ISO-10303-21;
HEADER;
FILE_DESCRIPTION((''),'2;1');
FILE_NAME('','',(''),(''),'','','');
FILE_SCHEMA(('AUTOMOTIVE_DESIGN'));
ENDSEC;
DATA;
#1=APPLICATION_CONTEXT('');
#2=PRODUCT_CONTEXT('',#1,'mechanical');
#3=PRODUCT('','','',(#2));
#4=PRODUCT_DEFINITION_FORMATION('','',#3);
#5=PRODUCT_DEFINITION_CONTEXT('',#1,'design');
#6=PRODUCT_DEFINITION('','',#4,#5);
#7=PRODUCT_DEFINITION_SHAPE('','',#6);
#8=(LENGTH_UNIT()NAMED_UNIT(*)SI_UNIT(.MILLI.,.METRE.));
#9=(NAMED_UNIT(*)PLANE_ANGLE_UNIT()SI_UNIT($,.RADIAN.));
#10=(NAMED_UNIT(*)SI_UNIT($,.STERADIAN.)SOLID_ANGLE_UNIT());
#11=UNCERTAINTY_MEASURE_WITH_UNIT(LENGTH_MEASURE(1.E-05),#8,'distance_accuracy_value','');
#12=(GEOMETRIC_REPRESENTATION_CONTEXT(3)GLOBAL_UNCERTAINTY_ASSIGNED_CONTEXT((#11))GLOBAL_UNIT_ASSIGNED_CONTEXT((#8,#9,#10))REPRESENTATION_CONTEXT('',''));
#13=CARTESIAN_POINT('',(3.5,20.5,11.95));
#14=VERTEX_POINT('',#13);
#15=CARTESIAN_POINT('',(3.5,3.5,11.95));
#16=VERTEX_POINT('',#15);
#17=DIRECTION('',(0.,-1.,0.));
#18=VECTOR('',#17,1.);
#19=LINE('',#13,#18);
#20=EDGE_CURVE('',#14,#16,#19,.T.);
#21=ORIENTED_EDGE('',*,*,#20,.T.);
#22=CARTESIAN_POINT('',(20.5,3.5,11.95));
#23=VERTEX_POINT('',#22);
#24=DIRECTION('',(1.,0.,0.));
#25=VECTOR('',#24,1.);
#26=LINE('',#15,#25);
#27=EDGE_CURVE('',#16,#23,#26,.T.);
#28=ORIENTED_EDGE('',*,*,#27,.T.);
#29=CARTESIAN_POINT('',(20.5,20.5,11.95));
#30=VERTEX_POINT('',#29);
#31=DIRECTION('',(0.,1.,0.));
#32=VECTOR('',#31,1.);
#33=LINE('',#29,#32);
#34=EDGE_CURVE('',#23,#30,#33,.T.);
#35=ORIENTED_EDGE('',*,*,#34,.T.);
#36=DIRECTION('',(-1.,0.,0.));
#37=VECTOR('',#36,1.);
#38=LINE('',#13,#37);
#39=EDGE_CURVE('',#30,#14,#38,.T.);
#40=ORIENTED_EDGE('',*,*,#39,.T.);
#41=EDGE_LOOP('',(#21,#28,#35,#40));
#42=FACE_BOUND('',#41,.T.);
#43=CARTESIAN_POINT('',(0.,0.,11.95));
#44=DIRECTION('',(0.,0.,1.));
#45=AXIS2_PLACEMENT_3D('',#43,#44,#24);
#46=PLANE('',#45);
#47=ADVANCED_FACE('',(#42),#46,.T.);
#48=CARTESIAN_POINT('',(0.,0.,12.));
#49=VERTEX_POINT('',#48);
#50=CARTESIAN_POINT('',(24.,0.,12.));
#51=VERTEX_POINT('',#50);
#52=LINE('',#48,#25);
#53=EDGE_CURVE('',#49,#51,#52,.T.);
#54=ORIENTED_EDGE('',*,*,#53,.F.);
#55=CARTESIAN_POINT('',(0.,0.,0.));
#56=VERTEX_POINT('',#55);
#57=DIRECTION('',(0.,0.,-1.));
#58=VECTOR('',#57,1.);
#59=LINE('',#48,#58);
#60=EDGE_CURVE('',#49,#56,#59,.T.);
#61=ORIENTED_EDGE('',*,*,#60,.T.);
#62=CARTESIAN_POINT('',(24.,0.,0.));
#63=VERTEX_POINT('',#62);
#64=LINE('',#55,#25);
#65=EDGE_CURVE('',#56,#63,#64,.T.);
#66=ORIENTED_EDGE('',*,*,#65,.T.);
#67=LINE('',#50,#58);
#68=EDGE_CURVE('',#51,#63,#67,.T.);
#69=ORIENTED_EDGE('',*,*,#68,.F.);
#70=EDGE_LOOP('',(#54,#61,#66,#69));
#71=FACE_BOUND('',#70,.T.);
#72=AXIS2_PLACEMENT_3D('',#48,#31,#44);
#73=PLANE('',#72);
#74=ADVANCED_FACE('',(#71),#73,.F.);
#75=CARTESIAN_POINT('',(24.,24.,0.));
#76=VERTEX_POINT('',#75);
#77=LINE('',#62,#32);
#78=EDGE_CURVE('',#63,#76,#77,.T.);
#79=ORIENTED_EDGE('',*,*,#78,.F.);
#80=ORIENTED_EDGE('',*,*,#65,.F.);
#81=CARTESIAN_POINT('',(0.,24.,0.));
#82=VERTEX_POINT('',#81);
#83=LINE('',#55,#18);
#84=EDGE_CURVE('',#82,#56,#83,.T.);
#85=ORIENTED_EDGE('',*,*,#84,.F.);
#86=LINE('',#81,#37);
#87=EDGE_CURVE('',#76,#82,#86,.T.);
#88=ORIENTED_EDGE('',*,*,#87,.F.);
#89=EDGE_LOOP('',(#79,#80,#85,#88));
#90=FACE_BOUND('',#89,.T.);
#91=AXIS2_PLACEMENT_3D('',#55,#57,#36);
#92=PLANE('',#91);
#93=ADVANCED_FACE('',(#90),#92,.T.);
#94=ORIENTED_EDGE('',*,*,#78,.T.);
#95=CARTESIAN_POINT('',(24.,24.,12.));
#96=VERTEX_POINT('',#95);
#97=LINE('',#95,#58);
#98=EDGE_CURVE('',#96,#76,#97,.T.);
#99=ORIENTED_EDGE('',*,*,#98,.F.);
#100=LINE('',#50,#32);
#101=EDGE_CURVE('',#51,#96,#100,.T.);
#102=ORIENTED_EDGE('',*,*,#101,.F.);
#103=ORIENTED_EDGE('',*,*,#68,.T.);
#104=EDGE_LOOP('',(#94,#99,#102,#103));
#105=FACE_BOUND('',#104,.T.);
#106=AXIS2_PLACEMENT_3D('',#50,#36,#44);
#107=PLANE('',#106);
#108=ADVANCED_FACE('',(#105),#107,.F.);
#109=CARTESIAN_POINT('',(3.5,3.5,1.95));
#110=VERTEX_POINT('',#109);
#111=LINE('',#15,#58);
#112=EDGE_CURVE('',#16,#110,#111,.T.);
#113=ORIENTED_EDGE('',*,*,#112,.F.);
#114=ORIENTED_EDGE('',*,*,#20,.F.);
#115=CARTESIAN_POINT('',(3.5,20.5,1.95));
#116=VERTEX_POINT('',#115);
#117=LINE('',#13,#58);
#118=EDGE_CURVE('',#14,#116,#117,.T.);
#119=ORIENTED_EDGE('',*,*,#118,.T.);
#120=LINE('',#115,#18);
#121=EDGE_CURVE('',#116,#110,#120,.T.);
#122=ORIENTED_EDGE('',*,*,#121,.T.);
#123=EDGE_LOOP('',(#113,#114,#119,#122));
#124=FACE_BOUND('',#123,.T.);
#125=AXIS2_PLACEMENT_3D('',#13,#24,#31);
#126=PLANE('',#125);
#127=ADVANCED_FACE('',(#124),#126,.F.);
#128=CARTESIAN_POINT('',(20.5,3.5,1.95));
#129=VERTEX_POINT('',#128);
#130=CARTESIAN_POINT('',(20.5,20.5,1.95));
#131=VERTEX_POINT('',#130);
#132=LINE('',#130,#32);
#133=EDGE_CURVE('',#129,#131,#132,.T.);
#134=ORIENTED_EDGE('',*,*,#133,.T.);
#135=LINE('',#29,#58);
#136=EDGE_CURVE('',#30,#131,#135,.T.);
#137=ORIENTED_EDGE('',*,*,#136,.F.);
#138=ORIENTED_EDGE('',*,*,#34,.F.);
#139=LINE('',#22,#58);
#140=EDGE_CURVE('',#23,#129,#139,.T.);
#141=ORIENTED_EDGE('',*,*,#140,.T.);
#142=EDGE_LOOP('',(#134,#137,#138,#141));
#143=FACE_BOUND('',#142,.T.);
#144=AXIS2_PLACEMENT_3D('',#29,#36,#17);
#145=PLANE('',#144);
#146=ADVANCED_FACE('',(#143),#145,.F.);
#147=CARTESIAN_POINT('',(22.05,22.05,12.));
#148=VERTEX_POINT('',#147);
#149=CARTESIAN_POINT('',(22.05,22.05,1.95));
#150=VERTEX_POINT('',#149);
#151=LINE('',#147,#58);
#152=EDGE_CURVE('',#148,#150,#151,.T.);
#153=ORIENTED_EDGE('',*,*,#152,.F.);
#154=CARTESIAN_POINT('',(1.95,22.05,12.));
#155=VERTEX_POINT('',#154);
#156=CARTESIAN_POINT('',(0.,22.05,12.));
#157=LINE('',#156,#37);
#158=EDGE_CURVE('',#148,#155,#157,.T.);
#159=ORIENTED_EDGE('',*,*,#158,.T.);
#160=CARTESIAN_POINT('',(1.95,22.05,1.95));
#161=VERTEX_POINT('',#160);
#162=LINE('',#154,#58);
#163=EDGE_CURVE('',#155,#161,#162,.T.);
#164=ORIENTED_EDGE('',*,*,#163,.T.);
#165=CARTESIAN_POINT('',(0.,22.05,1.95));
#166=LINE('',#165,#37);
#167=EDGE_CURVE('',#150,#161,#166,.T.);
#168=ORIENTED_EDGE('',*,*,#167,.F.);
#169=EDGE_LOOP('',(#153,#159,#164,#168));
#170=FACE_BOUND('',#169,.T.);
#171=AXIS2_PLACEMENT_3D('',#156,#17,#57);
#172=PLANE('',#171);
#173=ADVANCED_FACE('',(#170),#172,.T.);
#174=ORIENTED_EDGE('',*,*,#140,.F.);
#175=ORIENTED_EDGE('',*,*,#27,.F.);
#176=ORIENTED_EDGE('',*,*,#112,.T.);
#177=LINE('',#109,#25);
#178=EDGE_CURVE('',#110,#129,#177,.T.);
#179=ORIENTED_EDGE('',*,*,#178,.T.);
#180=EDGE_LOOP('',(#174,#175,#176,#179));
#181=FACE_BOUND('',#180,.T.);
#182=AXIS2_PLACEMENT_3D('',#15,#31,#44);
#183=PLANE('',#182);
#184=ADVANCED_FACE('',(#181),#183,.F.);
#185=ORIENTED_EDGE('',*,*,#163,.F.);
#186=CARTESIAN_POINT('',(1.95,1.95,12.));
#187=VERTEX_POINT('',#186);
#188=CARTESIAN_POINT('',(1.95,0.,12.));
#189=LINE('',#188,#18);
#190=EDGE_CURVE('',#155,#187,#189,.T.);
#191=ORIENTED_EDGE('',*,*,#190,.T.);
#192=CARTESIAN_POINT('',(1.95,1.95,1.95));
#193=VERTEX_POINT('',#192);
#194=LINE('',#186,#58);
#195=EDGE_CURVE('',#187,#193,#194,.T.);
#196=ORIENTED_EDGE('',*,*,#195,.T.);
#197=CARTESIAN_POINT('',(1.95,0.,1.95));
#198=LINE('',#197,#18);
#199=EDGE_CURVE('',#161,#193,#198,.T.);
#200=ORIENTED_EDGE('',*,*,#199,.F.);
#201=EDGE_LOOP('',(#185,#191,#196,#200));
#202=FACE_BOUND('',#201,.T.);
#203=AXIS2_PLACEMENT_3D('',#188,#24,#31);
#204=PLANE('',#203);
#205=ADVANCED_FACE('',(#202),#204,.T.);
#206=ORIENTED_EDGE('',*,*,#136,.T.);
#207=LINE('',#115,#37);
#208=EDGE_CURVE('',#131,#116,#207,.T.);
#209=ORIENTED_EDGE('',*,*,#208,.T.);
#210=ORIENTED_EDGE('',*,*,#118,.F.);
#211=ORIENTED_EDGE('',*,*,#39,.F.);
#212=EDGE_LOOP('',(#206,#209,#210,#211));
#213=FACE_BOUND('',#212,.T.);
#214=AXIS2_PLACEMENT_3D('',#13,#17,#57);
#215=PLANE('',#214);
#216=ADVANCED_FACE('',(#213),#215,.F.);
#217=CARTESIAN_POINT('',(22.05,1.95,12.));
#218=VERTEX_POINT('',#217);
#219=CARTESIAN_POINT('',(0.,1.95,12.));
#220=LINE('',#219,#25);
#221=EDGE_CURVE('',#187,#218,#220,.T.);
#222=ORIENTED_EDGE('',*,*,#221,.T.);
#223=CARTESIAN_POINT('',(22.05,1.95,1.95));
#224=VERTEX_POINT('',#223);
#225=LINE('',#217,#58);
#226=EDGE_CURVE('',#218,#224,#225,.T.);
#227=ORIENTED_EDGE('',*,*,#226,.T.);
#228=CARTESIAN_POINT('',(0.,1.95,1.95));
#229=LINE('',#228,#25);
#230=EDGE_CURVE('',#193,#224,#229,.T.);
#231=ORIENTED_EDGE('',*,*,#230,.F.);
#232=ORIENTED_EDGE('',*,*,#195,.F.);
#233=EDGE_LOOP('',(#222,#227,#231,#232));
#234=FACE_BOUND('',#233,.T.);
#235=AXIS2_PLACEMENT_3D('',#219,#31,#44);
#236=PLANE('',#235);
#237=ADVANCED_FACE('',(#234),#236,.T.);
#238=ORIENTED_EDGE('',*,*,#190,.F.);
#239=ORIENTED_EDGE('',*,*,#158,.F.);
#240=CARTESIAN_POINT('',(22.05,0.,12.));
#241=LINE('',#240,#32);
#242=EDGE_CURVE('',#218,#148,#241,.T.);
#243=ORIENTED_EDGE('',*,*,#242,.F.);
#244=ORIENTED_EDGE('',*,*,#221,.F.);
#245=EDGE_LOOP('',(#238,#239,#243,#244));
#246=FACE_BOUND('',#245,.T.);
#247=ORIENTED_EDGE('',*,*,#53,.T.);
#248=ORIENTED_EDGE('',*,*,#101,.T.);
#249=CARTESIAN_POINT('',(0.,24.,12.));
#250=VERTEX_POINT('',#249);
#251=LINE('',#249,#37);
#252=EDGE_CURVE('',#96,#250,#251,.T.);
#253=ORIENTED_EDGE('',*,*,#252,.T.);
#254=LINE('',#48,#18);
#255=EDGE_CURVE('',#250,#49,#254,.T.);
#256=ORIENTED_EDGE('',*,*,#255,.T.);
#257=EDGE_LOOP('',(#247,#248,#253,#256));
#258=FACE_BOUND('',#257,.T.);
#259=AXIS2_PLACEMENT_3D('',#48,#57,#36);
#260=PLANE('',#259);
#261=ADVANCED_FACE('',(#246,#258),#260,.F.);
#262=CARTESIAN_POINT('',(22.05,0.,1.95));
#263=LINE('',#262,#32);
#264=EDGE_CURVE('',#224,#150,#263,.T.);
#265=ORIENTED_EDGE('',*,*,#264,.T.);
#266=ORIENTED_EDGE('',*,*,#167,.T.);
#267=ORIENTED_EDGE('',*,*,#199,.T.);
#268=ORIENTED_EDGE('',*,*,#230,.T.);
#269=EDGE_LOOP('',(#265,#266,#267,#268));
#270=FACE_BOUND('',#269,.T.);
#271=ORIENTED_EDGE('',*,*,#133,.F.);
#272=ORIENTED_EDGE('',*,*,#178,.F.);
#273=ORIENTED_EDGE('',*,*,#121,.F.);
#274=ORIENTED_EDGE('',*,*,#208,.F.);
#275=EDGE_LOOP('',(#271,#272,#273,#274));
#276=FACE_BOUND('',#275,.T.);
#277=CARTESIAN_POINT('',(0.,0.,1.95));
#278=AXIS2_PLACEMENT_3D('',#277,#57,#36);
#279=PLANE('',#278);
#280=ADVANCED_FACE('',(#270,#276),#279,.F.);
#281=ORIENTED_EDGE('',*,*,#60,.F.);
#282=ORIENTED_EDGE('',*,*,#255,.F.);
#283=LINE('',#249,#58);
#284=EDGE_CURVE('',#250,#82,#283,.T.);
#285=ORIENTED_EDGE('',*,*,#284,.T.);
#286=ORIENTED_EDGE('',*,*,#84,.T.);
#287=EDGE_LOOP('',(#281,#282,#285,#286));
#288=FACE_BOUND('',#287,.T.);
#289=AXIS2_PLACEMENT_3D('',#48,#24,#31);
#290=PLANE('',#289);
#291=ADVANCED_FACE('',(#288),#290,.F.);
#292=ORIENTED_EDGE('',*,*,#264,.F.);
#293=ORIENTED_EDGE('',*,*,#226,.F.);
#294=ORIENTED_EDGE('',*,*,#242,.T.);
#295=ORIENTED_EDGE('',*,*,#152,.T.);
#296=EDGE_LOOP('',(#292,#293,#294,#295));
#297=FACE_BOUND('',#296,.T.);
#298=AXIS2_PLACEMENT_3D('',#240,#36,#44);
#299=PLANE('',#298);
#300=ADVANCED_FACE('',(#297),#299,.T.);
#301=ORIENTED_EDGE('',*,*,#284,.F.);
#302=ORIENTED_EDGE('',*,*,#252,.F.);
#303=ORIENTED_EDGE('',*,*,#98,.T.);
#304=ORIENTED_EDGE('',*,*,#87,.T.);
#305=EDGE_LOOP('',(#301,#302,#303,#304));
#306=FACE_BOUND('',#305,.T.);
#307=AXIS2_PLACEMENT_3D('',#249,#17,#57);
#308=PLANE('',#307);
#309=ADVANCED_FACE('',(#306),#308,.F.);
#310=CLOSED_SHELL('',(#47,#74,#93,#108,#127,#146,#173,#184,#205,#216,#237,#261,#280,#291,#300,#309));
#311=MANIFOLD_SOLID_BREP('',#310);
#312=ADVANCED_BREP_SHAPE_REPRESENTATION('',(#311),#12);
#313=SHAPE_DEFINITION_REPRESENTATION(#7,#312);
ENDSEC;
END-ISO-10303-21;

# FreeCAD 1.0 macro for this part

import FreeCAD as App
import Part
import Sketcher

V = App.Vector
Q = App.Units.Quantity


def faces_at(feature, points):
    """Names of the faces that lie closest to the given points."""
    faces = feature.Shape.Faces
    near = lambda p: min(range(len(faces)), key=lambda i: faces[i].distToShape(Part.Vertex(*p))[0])
    return sorted({f"Face{near(p) + 1}" for p in points})

doc = App.newDocument("Part")
body = doc.addObject("PartDesign::Body", "Body")

# Sketch on XY plane
sketch1 = body.newObject("Sketcher::SketchObject", "Sketch")
sketch1.AttachmentSupport = (doc.getObject("XY_Plane"), [""])
sketch1.MapMode = "FlatFace"
sketch1.addGeometry([
    Part.LineSegment(V(0, 24, 0), V(0, 0, 0)),
    Part.LineSegment(V(0, 0, 0), V(24, 0, 0)),
    Part.LineSegment(V(24, 0, 0), V(24, 24, 0)),
    Part.LineSegment(V(24, 24, 0), V(0, 24, 0)),
], False)
sketch1.addConstraint([
    Sketcher.Constraint("Coincident", 0, 2, 1, 1),
    Sketcher.Constraint("Coincident", 1, 2, 2, 1),
    Sketcher.Constraint("Coincident", 2, 2, 3, 1),
    Sketcher.Constraint("Coincident", 3, 2, 0, 1),
    Sketcher.Constraint("Vertical", 0),
    Sketcher.Constraint("Horizontal", 1),
    Sketcher.Constraint("Vertical", 2),
    Sketcher.Constraint("Horizontal", 3),
    Sketcher.Constraint("Coincident", 0, 2, -1, 1),
    Sketcher.Constraint("Equal", 3, 0),
    Sketcher.Constraint("DistanceX", 1, 1, 1, 2, Q("24 mm")),
])
pad1 = body.newObject("PartDesign::Pad", "Pad")
pad1.Profile = sketch1
pad1.Length = 12
doc.recompute()

thickness = body.newObject("PartDesign::Thickness", "Thickness")
thickness.Base = (pad1, faces_at(pad1, [(12, 12, 12)]))
thickness.Value = 1.95
thickness.Reversed = True
thickness.Join = "Intersection"

# Sketch on XY plane
sketch2 = body.newObject("Sketcher::SketchObject", "Sketch001")
sketch2.AttachmentSupport = (doc.getObject("XY_Plane"), [""])
sketch2.MapMode = "FlatFace"
sketch2.AttachmentOffset = App.Placement(V(0, 0, 1.95), App.Rotation())
sketch2.addGeometry([
    Part.LineSegment(V(4, 20, 0), V(4, 4, 0)),
    Part.LineSegment(V(4, 4, 0), V(20, 4, 0)),
    Part.LineSegment(V(20, 4, 0), V(20, 20, 0)),
    Part.LineSegment(V(20, 20, 0), V(4, 20, 0)),
], False)
sketch2.addConstraint([
    Sketcher.Constraint("Coincident", 0, 2, 1, 1),
    Sketcher.Constraint("Coincident", 1, 2, 2, 1),
    Sketcher.Constraint("Coincident", 2, 2, 3, 1),
    Sketcher.Constraint("Coincident", 3, 2, 0, 1),
    Sketcher.Constraint("Vertical", 0),
    Sketcher.Constraint("Horizontal", 1),
    Sketcher.Constraint("Vertical", 2),
    Sketcher.Constraint("Horizontal", 3),
    Sketcher.Constraint("Equal", 3, 0),
    Sketcher.Constraint("DistanceX", 1, 1, 1, 2, Q("17 mm")),
    Sketcher.Constraint("DistanceX", -1, 1, 0, 2, Q("3.5 mm")),
    Sketcher.Constraint("DistanceY", -1, 1, 0, 2, Q("3.5 mm")),
])
pad2 = body.newObject("PartDesign::Pad", "Pad001")
pad2.Profile = sketch2
pad2.Length = 10

doc.recompute()
